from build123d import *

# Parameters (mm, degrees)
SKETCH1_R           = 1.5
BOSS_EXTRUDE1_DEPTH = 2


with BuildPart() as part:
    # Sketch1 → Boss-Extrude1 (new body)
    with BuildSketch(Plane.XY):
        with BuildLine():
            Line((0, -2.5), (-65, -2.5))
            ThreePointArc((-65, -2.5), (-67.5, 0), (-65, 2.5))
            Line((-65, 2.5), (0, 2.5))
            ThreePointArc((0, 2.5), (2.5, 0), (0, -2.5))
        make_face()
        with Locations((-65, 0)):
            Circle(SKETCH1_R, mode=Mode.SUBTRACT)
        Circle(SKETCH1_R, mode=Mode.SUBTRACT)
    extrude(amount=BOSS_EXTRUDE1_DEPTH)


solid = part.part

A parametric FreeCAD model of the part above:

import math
import FreeCAD as App
import Part
import Sketcher
from FreeCAD import Vector
Q = App.Units.Quantity

doc = App.newDocument("Part")
body = doc.addObject("PartDesign::Body", "Body")

# Sketch on XY plane
sketch1 = doc.addObject("Sketcher::SketchObject", "Sketch")
body.addObject(sketch1)
sketch1.AttachmentSupport = (doc.XY_Plane, [""])
sketch1.MapMode = "FlatFace"
sketch1.addGeometry(Part.LineSegment(Vector(-65, -2.5, 0), Vector(0, -2.5, 0)), False)
sketch1.addGeometry(Part.ArcOfCircle(Part.Circle(Vector(0, 0, 0), Vector(0, 0, 1), 2.5), math.radians(-90), math.radians(90)), False)
sketch1.addGeometry(Part.LineSegment(Vector(0, 2.5, 0), Vector(-65, 2.5, 0)), False)
sketch1.addGeometry(Part.ArcOfCircle(Part.Circle(Vector(-65, 0, 0), Vector(0, 0, 1), 2.5), math.radians(90), math.radians(270)), False)
sketch1.addGeometry(Part.Circle(Vector(0, 0, 0), Vector(0, 0, 1), 1.5), False)
sketch1.addGeometry(Part.Circle(Vector(-65, 0, 0), Vector(0, 0, 1), 1.5), False)
sketch1.addConstraint(Sketcher.Constraint("Tangent", 0, 2, 1, 1))
sketch1.addConstraint(Sketcher.Constraint("Tangent", 1, 2, 2, 1))
sketch1.addConstraint(Sketcher.Constraint("Tangent", 2, 2, 3, 1))
sketch1.addConstraint(Sketcher.Constraint("Tangent", 3, 2, 0, 1))
sketch1.addConstraint(Sketcher.Constraint("Horizontal", 0))
sketch1.addConstraint(Sketcher.Constraint("Horizontal", 2))
sketch1.addConstraint(Sketcher.Constraint("Coincident", 1, 3, -1, 1))
sketch1.addConstraint(Sketcher.Constraint("Coincident", 4, 3, -1, 1))
sketch1.addConstraint(Sketcher.Constraint("Coincident", 5, 3, 3, 3))
sketch1.addConstraint(Sketcher.Constraint("Equal", 4, 5))
sketch1.addConstraint(Sketcher.Constraint("Diameter", 4, Q("3 mm")))
sketch1.addConstraint(Sketcher.Constraint("Radius", 1, Q("2.5 mm")))
sketch1.addConstraint(Sketcher.Constraint("DistanceX", 0, 1, 0, 2, Q("65 mm")))
pad1 = doc.addObject("PartDesign::Pad", "Pad")
body.addObject(pad1)
pad1.Profile = sketch1
pad1.Length = 2

doc.recompute()
